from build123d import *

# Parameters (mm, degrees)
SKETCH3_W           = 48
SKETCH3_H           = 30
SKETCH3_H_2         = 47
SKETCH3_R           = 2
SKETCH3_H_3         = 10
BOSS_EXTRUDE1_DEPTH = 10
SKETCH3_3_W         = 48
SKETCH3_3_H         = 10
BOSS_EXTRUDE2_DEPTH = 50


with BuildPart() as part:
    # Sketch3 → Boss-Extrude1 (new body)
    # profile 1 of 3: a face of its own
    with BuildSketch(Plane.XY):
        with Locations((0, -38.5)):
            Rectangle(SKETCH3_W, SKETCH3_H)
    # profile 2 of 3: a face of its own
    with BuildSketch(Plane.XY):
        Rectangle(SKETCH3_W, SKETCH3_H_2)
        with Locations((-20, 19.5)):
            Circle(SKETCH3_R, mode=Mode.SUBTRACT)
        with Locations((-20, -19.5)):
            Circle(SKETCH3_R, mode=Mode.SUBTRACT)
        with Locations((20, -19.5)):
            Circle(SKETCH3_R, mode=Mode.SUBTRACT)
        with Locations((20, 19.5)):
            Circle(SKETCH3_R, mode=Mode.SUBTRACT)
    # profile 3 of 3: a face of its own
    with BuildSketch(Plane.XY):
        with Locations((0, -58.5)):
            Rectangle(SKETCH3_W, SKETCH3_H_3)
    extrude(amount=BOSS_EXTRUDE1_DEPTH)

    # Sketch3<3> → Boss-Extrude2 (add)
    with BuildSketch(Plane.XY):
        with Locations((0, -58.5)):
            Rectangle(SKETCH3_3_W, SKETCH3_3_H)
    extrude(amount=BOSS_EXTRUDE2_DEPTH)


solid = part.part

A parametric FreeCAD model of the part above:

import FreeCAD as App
import Part
import Sketcher

V = App.Vector
Q = App.Units.Quantity

doc = App.newDocument("Part")
body = doc.addObject("PartDesign::Body", "Body")

sketch1 = body.newObject("Sketcher::SketchObject", "Sketch")
sketch1.AttachmentSupport = (doc.getObject("XY_Plane"), [""])
sketch1.MapMode = "FlatFace"
sketch1.addGeometry([
    Part.LineSegment(V(-24, -63.5, 0), V(24, -63.5, 0)),
    Part.LineSegment(V(24, -63.5, 0), V(24, 23.5, 0)),
    Part.LineSegment(V(24, 23.5, 0), V(-24, 23.5, 0)),
    Part.LineSegment(V(-24, 23.5, 0), V(-24, -63.5, 0)),
    Part.Circle(V(20, 19.5, 0), V(0, 0, 1), 2),
    Part.Circle(V(-20, -19.5, 0), V(0, 0, 1), 2),
    Part.Circle(V(20, -19.5, 0), V(0, 0, 1), 2),
    Part.Circle(V(-20, 19.5, 0), V(0, 0, 1), 2),
], False)
sketch1.addConstraint([
    Sketcher.Constraint("Coincident", 0, 2, 1, 1),
    Sketcher.Constraint("Coincident", 1, 2, 2, 1),
    Sketcher.Constraint("Coincident", 2, 2, 3, 1),
    Sketcher.Constraint("Coincident", 3, 2, 0, 1),
    Sketcher.Constraint("Horizontal", 0),
    Sketcher.Constraint("Vertical", 1),
    Sketcher.Constraint("Horizontal", 2),
    Sketcher.Constraint("Vertical", 3),
    Sketcher.Constraint("Equal", 4, 5),
    Sketcher.Constraint("Equal", 5, 6),
    Sketcher.Constraint("Equal", 6, 7),
    Sketcher.Constraint("Symmetric", 4, 3, 5, 3, -1, 1),
    Sketcher.Constraint("Symmetric", 6, 3, 7, 3, -1, 1),
    Sketcher.Constraint("Symmetric", 5, 3, 6, 3, -2),
    Sketcher.Constraint("Diameter", 4, Q("4 mm")),
    Sketcher.Constraint("DistanceX", 0, 1, 0, 2, Q("48 mm")),
    Sketcher.Constraint("DistanceY", 1, 1, 1, 2, Q("87 mm")),
    Sketcher.Constraint("DistanceX", -1, 1, 4, 3, Q("20 mm")),
    Sketcher.Constraint("DistanceX", -1, 1, 0, 2, Q("24 mm")),
    Sketcher.Constraint("DistanceY", 5, 3, 4, 3, Q("39 mm")),
    Sketcher.Constraint("DistanceY", 0, 2, 6, 3, Q("44 mm")),
])
pad1 = body.newObject("PartDesign::Pad", "Pad")
pad1.Profile = sketch1
pad1.Length = 10

sketch2 = body.newObject("Sketcher::SketchObject", "Sketch001")
sketch2.AttachmentSupport = (doc.getObject("XY_Plane"), [""])
sketch2.MapMode = "FlatFace"
sketch2.addGeometry([
    Part.LineSegment(V(-24, -54, 0), V(-24, -64, 0)),
    Part.LineSegment(V(-24, -64, 0), V(24, -64, 0)),
    Part.LineSegment(V(24, -64, 0), V(24, -54, 0)),
    Part.LineSegment(V(24, -54, 0), V(-24, -54, 0)),
], False)
sketch2.addConstraint([
    Sketcher.Constraint("Coincident", 0, 2, 1, 1),
    Sketcher.Constraint("Coincident", 1, 2, 2, 1),
    Sketcher.Constraint("Coincident", 2, 2, 3, 1),
    Sketcher.Constraint("Coincident", 3, 2, 0, 1),
    Sketcher.Constraint("Vertical", 0),
    Sketcher.Constraint("Horizontal", 1),
    Sketcher.Constraint("Vertical", 2),
    Sketcher.Constraint("Horizontal", 3),
    Sketcher.Constraint("DistanceX", 1, 1, 1, 2, Q("48 mm")),
    Sketcher.Constraint("DistanceY", 0, 2, 0, 1, Q("10 mm")),
    Sketcher.Constraint("DistanceX", 0, 2, -1, 1, Q("24 mm")),
    Sketcher.Constraint("DistanceY", 0, 2, -1, 1, Q("63.5 mm")),
])
pad2 = body.newObject("PartDesign::Pad", "Pad001")
pad2.Profile = sketch2
pad2.Length = 50

doc.recompute()
